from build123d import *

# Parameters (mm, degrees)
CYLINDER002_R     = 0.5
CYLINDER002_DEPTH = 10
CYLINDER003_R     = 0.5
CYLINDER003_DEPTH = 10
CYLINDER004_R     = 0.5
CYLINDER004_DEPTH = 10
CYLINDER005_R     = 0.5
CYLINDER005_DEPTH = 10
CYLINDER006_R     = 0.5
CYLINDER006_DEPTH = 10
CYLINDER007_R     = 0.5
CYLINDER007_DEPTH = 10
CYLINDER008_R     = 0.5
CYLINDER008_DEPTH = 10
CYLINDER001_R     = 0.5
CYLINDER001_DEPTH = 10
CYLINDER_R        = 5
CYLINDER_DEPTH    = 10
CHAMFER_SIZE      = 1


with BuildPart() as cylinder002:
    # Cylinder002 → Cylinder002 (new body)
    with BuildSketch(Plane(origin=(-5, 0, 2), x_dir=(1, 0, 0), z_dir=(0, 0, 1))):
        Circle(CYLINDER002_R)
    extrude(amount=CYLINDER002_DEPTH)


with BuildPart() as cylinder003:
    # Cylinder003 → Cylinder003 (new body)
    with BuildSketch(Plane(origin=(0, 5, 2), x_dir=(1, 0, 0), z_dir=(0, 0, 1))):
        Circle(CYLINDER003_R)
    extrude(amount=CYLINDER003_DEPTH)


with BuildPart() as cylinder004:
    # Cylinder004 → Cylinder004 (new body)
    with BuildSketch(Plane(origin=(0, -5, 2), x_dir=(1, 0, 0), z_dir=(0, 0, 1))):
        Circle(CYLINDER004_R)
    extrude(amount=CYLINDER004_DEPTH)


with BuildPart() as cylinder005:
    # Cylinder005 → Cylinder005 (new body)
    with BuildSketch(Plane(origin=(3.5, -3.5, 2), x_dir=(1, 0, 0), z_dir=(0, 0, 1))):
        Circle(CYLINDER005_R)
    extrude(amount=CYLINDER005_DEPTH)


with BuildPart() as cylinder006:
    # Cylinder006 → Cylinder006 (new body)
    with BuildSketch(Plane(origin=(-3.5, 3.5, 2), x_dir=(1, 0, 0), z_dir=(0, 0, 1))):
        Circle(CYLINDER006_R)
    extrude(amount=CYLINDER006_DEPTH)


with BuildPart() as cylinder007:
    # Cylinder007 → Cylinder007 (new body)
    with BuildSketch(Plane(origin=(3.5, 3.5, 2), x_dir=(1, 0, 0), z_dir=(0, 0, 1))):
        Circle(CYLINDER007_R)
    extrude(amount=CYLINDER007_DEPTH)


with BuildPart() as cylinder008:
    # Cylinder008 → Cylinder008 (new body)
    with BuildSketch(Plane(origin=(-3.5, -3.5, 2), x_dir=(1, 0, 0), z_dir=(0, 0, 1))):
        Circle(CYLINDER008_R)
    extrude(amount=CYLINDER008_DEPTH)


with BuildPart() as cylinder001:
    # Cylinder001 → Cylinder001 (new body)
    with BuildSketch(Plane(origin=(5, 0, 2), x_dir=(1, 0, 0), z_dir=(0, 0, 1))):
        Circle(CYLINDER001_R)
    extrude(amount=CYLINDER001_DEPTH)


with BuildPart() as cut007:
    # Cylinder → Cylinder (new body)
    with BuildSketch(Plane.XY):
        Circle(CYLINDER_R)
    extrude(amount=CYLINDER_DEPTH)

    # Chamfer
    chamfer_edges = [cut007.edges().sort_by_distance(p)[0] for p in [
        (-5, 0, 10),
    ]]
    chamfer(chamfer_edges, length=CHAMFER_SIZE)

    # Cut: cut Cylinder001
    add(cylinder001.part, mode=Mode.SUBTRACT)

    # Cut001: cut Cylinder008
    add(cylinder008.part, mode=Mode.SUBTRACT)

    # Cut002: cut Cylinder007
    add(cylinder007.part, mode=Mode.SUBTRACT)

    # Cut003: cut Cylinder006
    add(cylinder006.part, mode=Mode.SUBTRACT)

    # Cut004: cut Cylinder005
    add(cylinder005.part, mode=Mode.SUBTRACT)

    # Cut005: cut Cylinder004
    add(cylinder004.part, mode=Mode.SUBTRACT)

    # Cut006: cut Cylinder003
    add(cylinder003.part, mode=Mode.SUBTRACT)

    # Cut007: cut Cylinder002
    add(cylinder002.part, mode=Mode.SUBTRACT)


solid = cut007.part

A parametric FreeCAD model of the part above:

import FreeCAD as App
import Part
import Sketcher
from FreeCAD import Vector


def edges_at(feature, points):
    """Names of the edges that pass closest to the given points."""
    edges = feature.Shape.Edges
    near = lambda p: min(range(len(edges)), key=lambda i: edges[i].distToShape(Part.Vertex(*p))[0])
    return sorted({f"Edge{near(p) + 1}" for p in points})

doc = App.newDocument("Part")
body = doc.addObject("PartDesign::Body", "Body")

# Sketch on XY plane
sketch1 = body.newObject("Sketcher::SketchObject", "Sketch")
sketch1.AttachmentSupport = (doc.getObject("XY_Plane"), [""])
sketch1.MapMode = "FlatFace"
sketch1.AttachmentOffset = App.Placement(Vector(0, 0, 2), App.Rotation())
sketch1.addGeometry(Part.Circle(Vector(-5, 0, 0), Vector(0, 0, 1), 0.5), False)
sketch1.addConstraint(Sketcher.Constraint("PointOnObject", 0, 3, -1))
sketch1.addConstraint(Sketcher.Constraint("Diameter", 0, 1.0))
sketch1.addConstraint(Sketcher.Constraint("DistanceX", 0, 3, -1, 1, 5.0))
pad1 = body.newObject("PartDesign::Pad", "Pad")
pad1.Profile = sketch1
pad1.Length = 10
body2 = doc.addObject("PartDesign::Body", "Body001")

# Sketch on XY plane
sketch2 = body2.newObject("Sketcher::SketchObject", "Sketch001")
sketch2.AttachmentSupport = (doc.getObject("XY_Plane001"), [""])
sketch2.MapMode = "FlatFace"
sketch2.AttachmentOffset = App.Placement(Vector(0, 0, 2), App.Rotation())
sketch2.addGeometry(Part.Circle(Vector(0, 5, 0), Vector(0, 0, 1), 0.5), False)
sketch2.addConstraint(Sketcher.Constraint("PointOnObject", 0, 3, -2))
sketch2.addConstraint(Sketcher.Constraint("Diameter", 0, 1.0))
sketch2.addConstraint(Sketcher.Constraint("DistanceY", -1, 1, 0, 3, 5.0))
pad2 = body2.newObject("PartDesign::Pad", "Pad001")
pad2.Profile = sketch2
pad2.Length = 10
body3 = doc.addObject("PartDesign::Body", "Body002")

# Sketch on XY plane
sketch3 = body3.newObject("Sketcher::SketchObject", "Sketch002")
sketch3.AttachmentSupport = (doc.getObject("XY_Plane002"), [""])
sketch3.MapMode = "FlatFace"
sketch3.AttachmentOffset = App.Placement(Vector(0, 0, 2), App.Rotation())
sketch3.addGeometry(Part.Circle(Vector(0, -5, 0), Vector(0, 0, 1), 0.5), False)
sketch3.addConstraint(Sketcher.Constraint("PointOnObject", 0, 3, -2))
sketch3.addConstraint(Sketcher.Constraint("Diameter", 0, 1.0))
sketch3.addConstraint(Sketcher.Constraint("DistanceY", 0, 3, -1, 1, 5.0))
pad3 = body3.newObject("PartDesign::Pad", "Pad002")
pad3.Profile = sketch3
pad3.Length = 10
body4 = doc.addObject("PartDesign::Body", "Body003")

# Sketch on XY plane
sketch4 = body4.newObject("Sketcher::SketchObject", "Sketch003")
sketch4.AttachmentSupport = (doc.getObject("XY_Plane003"), [""])
sketch4.MapMode = "FlatFace"
sketch4.AttachmentOffset = App.Placement(Vector(0, 0, 2), App.Rotation())
sketch4.addGeometry(Part.Circle(Vector(3.5, -3.5, 0), Vector(0, 0, 1), 0.5), False)
sketch4.addConstraint(Sketcher.Constraint("Diameter", 0, 1.0))
sketch4.addConstraint(Sketcher.Constraint("DistanceX", -1, 1, 0, 3, 3.5))
sketch4.addConstraint(Sketcher.Constraint("DistanceY", 0, 3, -1, 1, 3.5))
pad4 = body4.newObject("PartDesign::Pad", "Pad003")
pad4.Profile = sketch4
pad4.Length = 10
body5 = doc.addObject("PartDesign::Body", "Body004")

# Sketch on XY plane
sketch5 = body5.newObject("Sketcher::SketchObject", "Sketch004")
sketch5.AttachmentSupport = (doc.getObject("XY_Plane004"), [""])
sketch5.MapMode = "FlatFace"
sketch5.AttachmentOffset = App.Placement(Vector(0, 0, 2), App.Rotation())
sketch5.addGeometry(Part.Circle(Vector(-3.5, 3.5, 0), Vector(0, 0, 1), 0.5), False)
sketch5.addConstraint(Sketcher.Constraint("Diameter", 0, 1.0))
sketch5.addConstraint(Sketcher.Constraint("DistanceX", 0, 3, -1, 1, 3.5))
sketch5.addConstraint(Sketcher.Constraint("DistanceY", -1, 1, 0, 3, 3.5))
pad5 = body5.newObject("PartDesign::Pad", "Pad004")
pad5.Profile = sketch5
pad5.Length = 10
body6 = doc.addObject("PartDesign::Body", "Body005")

# Sketch on XY plane
sketch6 = body6.newObject("Sketcher::SketchObject", "Sketch005")
sketch6.AttachmentSupport = (doc.getObject("XY_Plane005"), [""])
sketch6.MapMode = "FlatFace"
sketch6.AttachmentOffset = App.Placement(Vector(0, 0, 2), App.Rotation())
sketch6.addGeometry(Part.Circle(Vector(3.5, 3.5, 0), Vector(0, 0, 1), 0.5), False)
sketch6.addConstraint(Sketcher.Constraint("Diameter", 0, 1.0))
sketch6.addConstraint(Sketcher.Constraint("DistanceX", -1, 1, 0, 3, 3.5))
sketch6.addConstraint(Sketcher.Constraint("DistanceY", -1, 1, 0, 3, 3.5))
pad6 = body6.newObject("PartDesign::Pad", "Pad005")
pad6.Profile = sketch6
pad6.Length = 10
body7 = doc.addObject("PartDesign::Body", "Body006")

# Sketch on XY plane
sketch7 = body7.newObject("Sketcher::SketchObject", "Sketch006")
sketch7.AttachmentSupport = (doc.getObject("XY_Plane006"), [""])
sketch7.MapMode = "FlatFace"
sketch7.AttachmentOffset = App.Placement(Vector(0, 0, 2), App.Rotation())
sketch7.addGeometry(Part.Circle(Vector(-3.5, -3.5, 0), Vector(0, 0, 1), 0.5), False)
sketch7.addConstraint(Sketcher.Constraint("Diameter", 0, 1.0))
sketch7.addConstraint(Sketcher.Constraint("DistanceX", 0, 3, -1, 1, 3.5))
sketch7.addConstraint(Sketcher.Constraint("DistanceY", 0, 3, -1, 1, 3.5))
pad7 = body7.newObject("PartDesign::Pad", "Pad006")
pad7.Profile = sketch7
pad7.Length = 10
body8 = doc.addObject("PartDesign::Body", "Body007")

# Sketch on XY plane
sketch8 = body8.newObject("Sketcher::SketchObject", "Sketch007")
sketch8.AttachmentSupport = (doc.getObject("XY_Plane007"), [""])
sketch8.MapMode = "FlatFace"
sketch8.AttachmentOffset = App.Placement(Vector(0, 0, 2), App.Rotation())
sketch8.addGeometry(Part.Circle(Vector(5, 0, 0), Vector(0, 0, 1), 0.5), False)
sketch8.addConstraint(Sketcher.Constraint("PointOnObject", 0, 3, -1))
sketch8.addConstraint(Sketcher.Constraint("Diameter", 0, 1.0))
sketch8.addConstraint(Sketcher.Constraint("DistanceX", -1, 1, 0, 3, 5.0))
pad8 = body8.newObject("PartDesign::Pad", "Pad007")
pad8.Profile = sketch8
pad8.Length = 10
body9 = doc.addObject("PartDesign::Body", "Body008")

# Sketch on XY plane
sketch9 = body9.newObject("Sketcher::SketchObject", "Sketch008")
sketch9.AttachmentSupport = (doc.getObject("XY_Plane008"), [""])
sketch9.MapMode = "FlatFace"
sketch9.addGeometry(Part.Circle(Vector(0, 0, 0), Vector(0, 0, 1), 5), False)
sketch9.addConstraint(Sketcher.Constraint("Coincident", 0, 3, -1, 1))
sketch9.addConstraint(Sketcher.Constraint("Diameter", 0, 10.0))
pad9 = body9.newObject("PartDesign::Pad", "Pad008")
pad9.Profile = sketch9
pad9.Length = 10
doc.recompute()

chamfer = body9.newObject("PartDesign::Chamfer", "Chamfer")
chamfer.Base = (pad9, edges_at(pad9, [(-5, 0, 10)]))
chamfer.Size = 1
doc.recompute()

boolean = body9.newObject("PartDesign::Boolean", "Boolean")
boolean.Type = "Cut"
boolean.addObjects([body8])
doc.recompute()

boolean2 = body9.newObject("PartDesign::Boolean", "Boolean001")
boolean2.Type = "Cut"
boolean2.addObjects([body7])
doc.recompute()

boolean3 = body9.newObject("PartDesign::Boolean", "Boolean002")
boolean3.Type = "Cut"
boolean3.addObjects([body6])
doc.recompute()

boolean4 = body9.newObject("PartDesign::Boolean", "Boolean003")
boolean4.Type = "Cut"
boolean4.addObjects([body5])
doc.recompute()

boolean5 = body9.newObject("PartDesign::Boolean", "Boolean004")
boolean5.Type = "Cut"
boolean5.addObjects([body4])
doc.recompute()

boolean6 = body9.newObject("PartDesign::Boolean", "Boolean005")
boolean6.Type = "Cut"
boolean6.addObjects([body3])
doc.recompute()

boolean7 = body9.newObject("PartDesign::Boolean", "Boolean006")
boolean7.Type = "Cut"
boolean7.addObjects([body2])
doc.recompute()

boolean8 = body9.newObject("PartDesign::Boolean", "Boolean007")
boolean8.Type = "Cut"
boolean8.addObjects([body])

doc.recompute()
